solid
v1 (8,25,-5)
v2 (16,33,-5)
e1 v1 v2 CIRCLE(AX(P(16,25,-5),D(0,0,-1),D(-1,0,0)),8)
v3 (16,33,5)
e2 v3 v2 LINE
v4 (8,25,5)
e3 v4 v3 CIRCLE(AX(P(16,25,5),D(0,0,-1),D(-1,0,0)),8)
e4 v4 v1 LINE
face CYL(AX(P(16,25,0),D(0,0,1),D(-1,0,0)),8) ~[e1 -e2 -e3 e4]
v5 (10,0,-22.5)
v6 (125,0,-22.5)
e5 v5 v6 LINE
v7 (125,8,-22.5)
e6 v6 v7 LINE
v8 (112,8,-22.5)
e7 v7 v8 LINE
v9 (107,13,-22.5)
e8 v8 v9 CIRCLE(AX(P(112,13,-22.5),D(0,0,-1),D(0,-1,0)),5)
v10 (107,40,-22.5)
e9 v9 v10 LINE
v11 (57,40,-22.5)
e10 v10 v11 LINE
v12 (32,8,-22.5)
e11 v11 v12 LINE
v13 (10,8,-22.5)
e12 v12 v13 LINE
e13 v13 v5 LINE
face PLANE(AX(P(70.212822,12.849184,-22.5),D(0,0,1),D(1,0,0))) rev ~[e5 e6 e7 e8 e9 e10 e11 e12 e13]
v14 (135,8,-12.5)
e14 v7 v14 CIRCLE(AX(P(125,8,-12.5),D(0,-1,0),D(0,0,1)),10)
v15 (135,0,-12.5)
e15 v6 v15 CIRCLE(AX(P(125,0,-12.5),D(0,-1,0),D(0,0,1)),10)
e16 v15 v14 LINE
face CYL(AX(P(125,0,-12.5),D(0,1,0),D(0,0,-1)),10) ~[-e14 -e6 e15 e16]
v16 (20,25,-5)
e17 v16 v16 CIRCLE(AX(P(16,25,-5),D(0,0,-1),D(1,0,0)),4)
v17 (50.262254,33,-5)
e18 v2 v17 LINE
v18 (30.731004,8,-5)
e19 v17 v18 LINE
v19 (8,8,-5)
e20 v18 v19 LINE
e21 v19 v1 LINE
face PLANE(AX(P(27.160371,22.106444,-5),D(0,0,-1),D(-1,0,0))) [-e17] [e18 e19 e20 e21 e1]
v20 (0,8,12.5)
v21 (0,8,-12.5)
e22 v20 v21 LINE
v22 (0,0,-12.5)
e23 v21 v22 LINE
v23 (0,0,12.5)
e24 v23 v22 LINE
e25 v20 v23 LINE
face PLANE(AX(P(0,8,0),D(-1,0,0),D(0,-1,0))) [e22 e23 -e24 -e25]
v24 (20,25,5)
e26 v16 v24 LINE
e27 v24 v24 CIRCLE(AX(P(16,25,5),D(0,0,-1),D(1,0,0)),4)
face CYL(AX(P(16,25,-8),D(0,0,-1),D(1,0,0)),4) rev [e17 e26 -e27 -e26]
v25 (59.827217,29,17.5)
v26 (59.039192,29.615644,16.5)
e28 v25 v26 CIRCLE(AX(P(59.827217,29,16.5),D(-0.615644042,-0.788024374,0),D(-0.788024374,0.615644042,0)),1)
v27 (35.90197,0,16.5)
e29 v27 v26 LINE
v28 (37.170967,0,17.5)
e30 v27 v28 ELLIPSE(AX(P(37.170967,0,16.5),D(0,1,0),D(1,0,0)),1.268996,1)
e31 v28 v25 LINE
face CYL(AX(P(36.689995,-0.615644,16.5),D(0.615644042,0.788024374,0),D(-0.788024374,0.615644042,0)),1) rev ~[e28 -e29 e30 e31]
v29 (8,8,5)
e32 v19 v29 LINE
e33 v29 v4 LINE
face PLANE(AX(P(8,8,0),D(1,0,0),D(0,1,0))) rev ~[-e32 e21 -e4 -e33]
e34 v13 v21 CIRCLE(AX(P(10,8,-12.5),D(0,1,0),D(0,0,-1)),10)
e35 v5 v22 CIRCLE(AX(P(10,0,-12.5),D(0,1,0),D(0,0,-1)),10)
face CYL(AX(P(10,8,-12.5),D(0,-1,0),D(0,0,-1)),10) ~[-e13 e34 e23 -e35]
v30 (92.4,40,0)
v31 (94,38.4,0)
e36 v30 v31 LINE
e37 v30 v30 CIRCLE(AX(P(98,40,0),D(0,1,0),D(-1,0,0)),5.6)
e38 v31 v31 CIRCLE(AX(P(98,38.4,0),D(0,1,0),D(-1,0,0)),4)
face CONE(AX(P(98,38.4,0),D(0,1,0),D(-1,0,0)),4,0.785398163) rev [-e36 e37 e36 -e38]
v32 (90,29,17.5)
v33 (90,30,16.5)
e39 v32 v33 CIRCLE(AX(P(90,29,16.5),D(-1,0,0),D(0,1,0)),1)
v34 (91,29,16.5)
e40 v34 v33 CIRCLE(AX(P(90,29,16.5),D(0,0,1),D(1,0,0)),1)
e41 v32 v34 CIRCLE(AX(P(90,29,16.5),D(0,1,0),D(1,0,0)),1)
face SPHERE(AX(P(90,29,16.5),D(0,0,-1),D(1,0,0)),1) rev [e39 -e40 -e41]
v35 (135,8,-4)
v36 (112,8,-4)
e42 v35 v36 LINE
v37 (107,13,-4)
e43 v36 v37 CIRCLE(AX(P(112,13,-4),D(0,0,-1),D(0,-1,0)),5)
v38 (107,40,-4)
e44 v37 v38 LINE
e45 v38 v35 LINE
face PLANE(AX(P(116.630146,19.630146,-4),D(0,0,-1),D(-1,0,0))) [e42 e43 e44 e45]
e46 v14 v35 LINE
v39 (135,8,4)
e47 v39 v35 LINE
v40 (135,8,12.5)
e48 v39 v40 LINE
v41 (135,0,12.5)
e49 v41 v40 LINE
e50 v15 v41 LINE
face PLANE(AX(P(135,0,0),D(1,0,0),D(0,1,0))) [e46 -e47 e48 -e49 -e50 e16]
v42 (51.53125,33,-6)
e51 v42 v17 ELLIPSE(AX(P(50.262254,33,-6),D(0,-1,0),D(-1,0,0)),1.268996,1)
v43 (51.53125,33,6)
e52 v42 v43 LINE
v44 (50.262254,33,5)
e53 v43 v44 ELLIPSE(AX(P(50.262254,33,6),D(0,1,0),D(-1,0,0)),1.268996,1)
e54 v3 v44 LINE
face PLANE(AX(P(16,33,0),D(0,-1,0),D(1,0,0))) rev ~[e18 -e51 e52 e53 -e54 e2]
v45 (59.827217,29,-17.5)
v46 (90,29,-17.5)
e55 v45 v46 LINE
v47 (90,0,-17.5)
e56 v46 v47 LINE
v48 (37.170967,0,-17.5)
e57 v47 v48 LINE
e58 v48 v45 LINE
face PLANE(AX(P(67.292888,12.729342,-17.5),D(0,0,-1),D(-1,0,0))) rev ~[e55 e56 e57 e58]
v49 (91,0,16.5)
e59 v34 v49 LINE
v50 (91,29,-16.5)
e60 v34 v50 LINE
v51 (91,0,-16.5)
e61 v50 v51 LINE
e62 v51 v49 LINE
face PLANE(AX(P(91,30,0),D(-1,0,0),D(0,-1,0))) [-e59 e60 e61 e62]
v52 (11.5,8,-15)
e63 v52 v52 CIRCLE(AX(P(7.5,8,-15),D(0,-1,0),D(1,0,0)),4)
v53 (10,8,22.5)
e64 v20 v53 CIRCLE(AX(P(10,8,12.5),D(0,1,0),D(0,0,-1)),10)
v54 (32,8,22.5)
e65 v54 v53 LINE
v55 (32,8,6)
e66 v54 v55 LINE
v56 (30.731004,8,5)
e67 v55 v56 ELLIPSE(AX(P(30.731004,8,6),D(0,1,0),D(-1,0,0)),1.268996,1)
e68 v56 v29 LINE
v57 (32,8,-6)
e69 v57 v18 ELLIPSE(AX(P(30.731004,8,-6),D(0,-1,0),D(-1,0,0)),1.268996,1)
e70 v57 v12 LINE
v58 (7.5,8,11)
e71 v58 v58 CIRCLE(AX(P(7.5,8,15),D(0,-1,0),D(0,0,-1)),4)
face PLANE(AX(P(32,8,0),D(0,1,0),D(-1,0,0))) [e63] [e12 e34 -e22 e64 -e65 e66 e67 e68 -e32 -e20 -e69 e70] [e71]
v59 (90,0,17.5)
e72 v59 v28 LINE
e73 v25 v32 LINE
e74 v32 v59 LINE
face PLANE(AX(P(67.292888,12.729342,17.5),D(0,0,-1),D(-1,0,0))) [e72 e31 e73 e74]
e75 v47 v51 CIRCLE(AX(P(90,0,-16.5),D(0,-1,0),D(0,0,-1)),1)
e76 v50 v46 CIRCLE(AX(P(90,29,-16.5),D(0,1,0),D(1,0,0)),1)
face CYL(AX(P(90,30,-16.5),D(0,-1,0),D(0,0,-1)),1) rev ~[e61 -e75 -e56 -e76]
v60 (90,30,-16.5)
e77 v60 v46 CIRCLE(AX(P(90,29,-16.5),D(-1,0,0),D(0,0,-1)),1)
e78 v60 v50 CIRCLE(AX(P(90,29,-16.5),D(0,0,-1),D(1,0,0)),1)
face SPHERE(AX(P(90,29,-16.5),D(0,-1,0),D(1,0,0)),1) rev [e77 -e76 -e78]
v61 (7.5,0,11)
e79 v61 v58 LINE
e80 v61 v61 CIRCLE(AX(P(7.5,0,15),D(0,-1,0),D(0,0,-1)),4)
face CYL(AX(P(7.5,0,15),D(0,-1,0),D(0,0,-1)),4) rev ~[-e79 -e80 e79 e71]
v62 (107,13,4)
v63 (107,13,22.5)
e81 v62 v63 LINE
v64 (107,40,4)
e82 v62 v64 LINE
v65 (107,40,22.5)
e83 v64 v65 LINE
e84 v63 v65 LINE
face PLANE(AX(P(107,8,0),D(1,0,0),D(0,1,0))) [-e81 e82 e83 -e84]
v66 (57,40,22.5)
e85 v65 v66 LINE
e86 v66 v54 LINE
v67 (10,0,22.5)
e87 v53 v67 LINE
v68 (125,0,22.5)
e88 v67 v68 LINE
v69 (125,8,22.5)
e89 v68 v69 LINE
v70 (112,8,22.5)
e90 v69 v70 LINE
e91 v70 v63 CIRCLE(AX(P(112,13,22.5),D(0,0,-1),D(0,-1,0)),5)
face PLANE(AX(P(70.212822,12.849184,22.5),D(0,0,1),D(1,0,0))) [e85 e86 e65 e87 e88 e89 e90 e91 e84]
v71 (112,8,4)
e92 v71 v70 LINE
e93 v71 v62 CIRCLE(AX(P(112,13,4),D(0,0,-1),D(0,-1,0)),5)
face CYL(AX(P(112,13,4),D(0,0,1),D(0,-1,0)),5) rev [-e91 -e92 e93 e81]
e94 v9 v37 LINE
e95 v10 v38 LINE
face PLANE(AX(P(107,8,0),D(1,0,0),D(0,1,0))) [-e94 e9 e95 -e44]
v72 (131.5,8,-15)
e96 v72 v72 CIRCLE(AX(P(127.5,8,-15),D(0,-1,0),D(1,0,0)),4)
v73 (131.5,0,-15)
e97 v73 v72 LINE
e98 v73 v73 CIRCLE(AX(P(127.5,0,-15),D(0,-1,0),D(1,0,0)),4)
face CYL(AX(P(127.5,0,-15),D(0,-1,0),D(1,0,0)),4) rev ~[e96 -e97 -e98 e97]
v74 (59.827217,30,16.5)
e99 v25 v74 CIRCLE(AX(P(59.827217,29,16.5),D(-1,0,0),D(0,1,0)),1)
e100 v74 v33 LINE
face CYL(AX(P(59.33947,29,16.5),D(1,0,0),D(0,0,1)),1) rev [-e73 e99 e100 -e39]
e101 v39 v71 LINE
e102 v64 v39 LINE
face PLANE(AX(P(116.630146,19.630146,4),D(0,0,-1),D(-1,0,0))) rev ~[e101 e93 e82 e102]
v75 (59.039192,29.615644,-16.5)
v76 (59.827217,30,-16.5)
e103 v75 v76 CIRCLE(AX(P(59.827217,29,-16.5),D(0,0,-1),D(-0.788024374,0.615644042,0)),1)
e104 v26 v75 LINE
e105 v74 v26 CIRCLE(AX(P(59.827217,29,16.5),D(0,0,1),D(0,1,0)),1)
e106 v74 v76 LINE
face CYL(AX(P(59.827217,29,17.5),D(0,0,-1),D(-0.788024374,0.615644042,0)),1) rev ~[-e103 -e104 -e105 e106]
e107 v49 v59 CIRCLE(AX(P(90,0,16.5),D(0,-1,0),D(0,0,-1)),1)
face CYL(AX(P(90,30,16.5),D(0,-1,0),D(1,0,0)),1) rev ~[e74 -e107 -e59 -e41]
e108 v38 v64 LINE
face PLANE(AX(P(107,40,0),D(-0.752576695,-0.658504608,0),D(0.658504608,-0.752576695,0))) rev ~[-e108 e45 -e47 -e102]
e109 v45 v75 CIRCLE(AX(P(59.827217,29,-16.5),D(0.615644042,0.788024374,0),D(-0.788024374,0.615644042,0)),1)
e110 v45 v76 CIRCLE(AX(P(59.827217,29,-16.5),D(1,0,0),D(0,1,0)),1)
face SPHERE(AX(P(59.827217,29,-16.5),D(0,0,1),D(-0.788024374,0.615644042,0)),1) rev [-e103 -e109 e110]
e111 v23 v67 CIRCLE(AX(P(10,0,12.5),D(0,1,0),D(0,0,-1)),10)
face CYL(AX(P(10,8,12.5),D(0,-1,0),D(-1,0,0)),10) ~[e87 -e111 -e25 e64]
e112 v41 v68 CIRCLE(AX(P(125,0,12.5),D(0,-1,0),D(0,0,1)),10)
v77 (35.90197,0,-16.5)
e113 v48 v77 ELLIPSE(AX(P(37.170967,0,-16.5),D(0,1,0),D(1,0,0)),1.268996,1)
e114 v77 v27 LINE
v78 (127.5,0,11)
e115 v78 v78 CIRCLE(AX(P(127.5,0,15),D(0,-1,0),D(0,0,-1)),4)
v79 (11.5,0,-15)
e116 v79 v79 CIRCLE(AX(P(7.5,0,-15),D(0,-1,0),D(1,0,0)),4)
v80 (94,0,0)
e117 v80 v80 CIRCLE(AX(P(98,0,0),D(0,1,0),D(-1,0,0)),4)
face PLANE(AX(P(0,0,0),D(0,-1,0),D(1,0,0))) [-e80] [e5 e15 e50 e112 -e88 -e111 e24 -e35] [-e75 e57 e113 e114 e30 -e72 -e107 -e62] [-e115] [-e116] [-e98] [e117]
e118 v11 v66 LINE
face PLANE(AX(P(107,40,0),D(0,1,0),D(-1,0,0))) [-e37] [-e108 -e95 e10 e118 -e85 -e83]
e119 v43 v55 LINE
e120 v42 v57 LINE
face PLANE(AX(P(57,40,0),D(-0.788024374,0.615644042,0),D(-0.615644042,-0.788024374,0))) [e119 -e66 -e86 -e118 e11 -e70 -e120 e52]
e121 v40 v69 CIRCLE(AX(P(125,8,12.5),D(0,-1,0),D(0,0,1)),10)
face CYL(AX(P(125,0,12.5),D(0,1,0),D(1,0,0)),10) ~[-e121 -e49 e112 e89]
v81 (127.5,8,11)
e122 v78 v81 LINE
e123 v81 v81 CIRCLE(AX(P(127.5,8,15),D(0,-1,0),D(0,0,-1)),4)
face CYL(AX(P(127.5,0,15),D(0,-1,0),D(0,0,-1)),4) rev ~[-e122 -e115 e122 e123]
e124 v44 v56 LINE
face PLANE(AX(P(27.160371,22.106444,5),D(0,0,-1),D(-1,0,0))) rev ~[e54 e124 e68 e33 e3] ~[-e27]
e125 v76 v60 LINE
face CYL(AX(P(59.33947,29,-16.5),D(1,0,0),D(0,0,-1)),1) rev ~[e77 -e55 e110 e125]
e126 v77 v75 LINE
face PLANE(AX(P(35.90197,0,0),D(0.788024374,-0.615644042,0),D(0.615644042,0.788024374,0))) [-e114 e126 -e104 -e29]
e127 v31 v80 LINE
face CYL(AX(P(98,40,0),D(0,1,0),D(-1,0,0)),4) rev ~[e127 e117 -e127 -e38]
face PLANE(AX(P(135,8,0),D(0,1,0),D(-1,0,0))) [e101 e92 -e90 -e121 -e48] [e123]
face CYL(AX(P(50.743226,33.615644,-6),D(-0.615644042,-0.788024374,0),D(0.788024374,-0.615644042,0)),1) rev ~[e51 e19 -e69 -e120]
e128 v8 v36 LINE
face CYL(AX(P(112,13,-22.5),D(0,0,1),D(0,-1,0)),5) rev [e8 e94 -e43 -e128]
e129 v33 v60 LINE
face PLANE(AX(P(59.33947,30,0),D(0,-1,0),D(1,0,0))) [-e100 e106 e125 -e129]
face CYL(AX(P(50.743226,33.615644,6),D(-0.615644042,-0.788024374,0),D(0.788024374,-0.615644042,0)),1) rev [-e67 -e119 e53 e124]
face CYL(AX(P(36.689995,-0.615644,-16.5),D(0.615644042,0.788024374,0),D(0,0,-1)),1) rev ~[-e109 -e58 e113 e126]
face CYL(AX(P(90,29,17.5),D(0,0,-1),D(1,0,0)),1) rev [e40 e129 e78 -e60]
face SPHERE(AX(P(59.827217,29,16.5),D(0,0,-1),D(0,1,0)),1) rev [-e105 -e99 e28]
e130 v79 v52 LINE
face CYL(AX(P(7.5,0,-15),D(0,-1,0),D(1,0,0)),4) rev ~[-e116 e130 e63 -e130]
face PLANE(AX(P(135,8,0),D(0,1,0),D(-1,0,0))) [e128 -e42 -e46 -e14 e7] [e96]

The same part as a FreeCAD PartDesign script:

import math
import FreeCAD as App
import Part
import Sketcher

V = App.Vector
Q = App.Units.Quantity


def edges_at(feature, points):
    """Names of the edges that pass closest to the given points."""
    edges = feature.Shape.Edges
    near = lambda p: min(range(len(edges)), key=lambda i: edges[i].distToShape(Part.Vertex(*p))[0])
    return sorted({f"Edge{near(p) + 1}" for p in points})


def add_polygon(sketch, points):
    """Adds a closed chain of lines whose ends are joined by coincident constraints."""
    first, n = sketch.GeometryCount, len(points)
    for a, b in zip(points, points[1:] + points[:1]):
        sketch.addGeometry(Part.LineSegment(App.Vector(*a, 0), App.Vector(*b, 0)), False)
    for i in range(n):
        sketch.addConstraint(Sketcher.Constraint("Coincident", first + i, 2, first + (i + 1) % n, 1))

doc = App.newDocument("Part")
body = doc.addObject("PartDesign::Body", "Body")

# Sketch on XY plane
sketch1 = doc.addObject("Sketcher::SketchObject", "Sketch")
body.addObject(sketch1)
sketch1.AttachmentSupport = (doc.XY_Plane, [""])
sketch1.MapMode = "FlatFace"
add_polygon(sketch1, [(0, 0), (135, 0), (135, 8), (107, 8), (107, 40), (57, 40), (32, 8), (0, 8)])  # lines 0-7
sketch1.addConstraint([
    Sketcher.Constraint("Horizontal", 0),
    Sketcher.Constraint("Vertical", 1),
    Sketcher.Constraint("Horizontal", 2),
    Sketcher.Constraint("Vertical", 3),
    Sketcher.Constraint("Horizontal", 4),
    Sketcher.Constraint("Horizontal", 6),
    Sketcher.Constraint("Vertical", 7),
    Sketcher.Constraint("Coincident", 7, 2, -1, 1),
    Sketcher.Constraint("Horizontal", 2, 2, 5, 2),
    Sketcher.Constraint("Equal", 6, 3),
    Sketcher.Constraint("DistanceX", 0, 1, 0, 2, Q("135 mm")),
    Sketcher.Constraint("DistanceX", 2, 2, 2, 1, Q("28 mm")),
    Sketcher.Constraint("DistanceX", 4, 2, 4, 1, Q("50 mm")),
    Sketcher.Constraint("DistanceX", 6, 2, 6, 1, Q("32 mm")),
    Sketcher.Constraint("DistanceY", 1, 1, 1, 2, Q("8 mm")),
])
pad1 = doc.addObject("PartDesign::Pad", "Pad")
body.addObject(pad1)
pad1.Profile = sketch1
pad1.Length = 45
pad1.Midplane = True

# Sketch on XY plane
sketch2 = doc.addObject("Sketcher::SketchObject", "Sketch001")
body.addObject(sketch2)
sketch2.AttachmentSupport = (doc.XY_Plane, [""])
sketch2.MapMode = "FlatFace"
sketch2.addGeometry([
    Part.LineSegment(V(8, 25, 0), V(8, 8, 0)),  # 0
    Part.LineSegment(V(8, 8, 0), V(32, 8, 0)),  # 1
    Part.LineSegment(V(32, 8, 0), V(52, 33, 0)),  # 2
    Part.LineSegment(V(52, 33, 0), V(16, 33, 0)),  # 3
    Part.ArcOfCircle(Part.Circle(V(16, 25, 0), V(0, 0, 1), 8), math.radians(90), math.radians(180)),  # 4
], False)
sketch2.addConstraint([
    Sketcher.Constraint("Coincident", 0, 2, 1, 1),
    Sketcher.Constraint("Coincident", 1, 2, 2, 1),
    Sketcher.Constraint("Coincident", 2, 2, 3, 1),
    Sketcher.Constraint("Tangent", 3, 2, 4, 1),
    Sketcher.Constraint("Tangent", 4, 2, 0, 1),
    Sketcher.Constraint("Vertical", 0),
    Sketcher.Constraint("Horizontal", 1),
    Sketcher.Constraint("Horizontal", 3),
    Sketcher.Constraint("Radius", 4, Q("8 mm")),
    Sketcher.Constraint("DistanceX", 1, 1, 1, 2, Q("24 mm")),
    Sketcher.Constraint("DistanceY", 0, 2, 0, 1, Q("17 mm")),
    Sketcher.Constraint("DistanceX", -1, 1, 4, 3, Q("16 mm")),
    Sketcher.Constraint("DistanceY", -1, 1, 4, 3, Q("25 mm")),
    Sketcher.Constraint("DistanceX", 3, 2, 3, 1, Q("35.53125 mm")),
])
pad2 = doc.addObject("PartDesign::Pad", "Pad001")
body.addObject(pad2)
pad2.Profile = sketch2
pad2.Length = 10
pad2.Midplane = True

# Sketch on XY plane
sketch3 = doc.addObject("Sketcher::SketchObject", "Sketch002")
body.addObject(sketch3)
sketch3.AttachmentSupport = (doc.XY_Plane, [""])
sketch3.MapMode = "FlatFace"
add_polygon(sketch3, [(135, 8), (107, 40), (107, 8)])  # lines 0-2
sketch3.addConstraint([
    Sketcher.Constraint("Vertical", 1),
    Sketcher.Constraint("Horizontal", 2),
    Sketcher.Constraint("DistanceX", 2, 1, 2, 2, Q("28 mm")),
    Sketcher.Constraint("DistanceY", 1, 2, 1, 1, Q("32 mm")),
    Sketcher.Constraint("DistanceX", -1, 1, 0, 2, Q("107 mm")),
    Sketcher.Constraint("DistanceY", -1, 1, 0, 2, Q("40 mm")),
])
pad3 = doc.addObject("PartDesign::Pad", "Pad002")
body.addObject(pad3)
pad3.Profile = sketch3
pad3.Length = 8
pad3.Midplane = True

# Sketch on XY plane
sketch4 = doc.addObject("Sketcher::SketchObject", "Sketch003")
body.addObject(sketch4)
sketch4.AttachmentSupport = (doc.XY_Plane, [""])
sketch4.MapMode = "FlatFace"
sketch4.addGeometry(Part.Circle(V(16, 25, 0), V(0, 0, 1), 4), False)
sketch4.addConstraint([
    Sketcher.Constraint("Diameter", 0, Q("8 mm")),
    Sketcher.Constraint("DistanceX", -1, 1, 0, 3, Q("16 mm")),
    Sketcher.Constraint("DistanceY", -1, 1, 0, 3, Q("25 mm")),
])
pocket1 = doc.addObject("PartDesign::Pocket", "Pocket")
body.addObject(pocket1)
pocket1.Profile = sketch4
pocket1.Type = "ThroughAll"
pocket1.Midplane = True

# Sketch on XY plane
sketch5 = doc.addObject("Sketcher::SketchObject", "Sketch004")
body.addObject(sketch5)
sketch5.AttachmentSupport = (doc.XY_Plane, [""])
sketch5.MapMode = "FlatFace"
add_polygon(sketch5, [(59, 30), (36, 0), (91, 0), (91, 30)])  # lines 0-3
sketch5.addConstraint([
    Sketcher.Constraint("Horizontal", 1),
    Sketcher.Constraint("Vertical", 2),
    Sketcher.Constraint("Horizontal", 3),
    Sketcher.Constraint("PointOnObject", 0, 2, -1),
    Sketcher.Constraint("DistanceY", 2, 1, 2, 2, Q("30 mm")),
    Sketcher.Constraint("DistanceX", -1, 1, 1, 2, Q("91 mm")),
    Sketcher.Constraint("DistanceX", 1, 1, 1, 2, Q("55.09803 mm")),
    Sketcher.Constraint("DistanceX", 3, 2, 3, 1, Q("31.66053 mm")),
])
pocket2 = doc.addObject("PartDesign::Pocket", "Pocket001")
body.addObject(pocket2)
pocket2.Profile = sketch5
pocket2.Length = 35
pocket2.Midplane = True
doc.recompute()

fillet = doc.addObject("PartDesign::Fillet", "Fillet")
body.addObject(fillet)
fillet.Base = (pocket2, edges_at(pocket2, [(107, 8, 13.25), (107, 8, -13.25)]))
fillet.Radius = 5

# Sketch on XZ plane
sketch6 = doc.addObject("Sketcher::SketchObject", "Sketch005")
body.addObject(sketch6)
sketch6.AttachmentSupport = (doc.XZ_Plane, [""])
sketch6.MapMode = "FlatFace"
sketch6.addGeometry([
    Part.Circle(V(7.5, 15, 0), V(0, 0, 1), 4),
    Part.Circle(V(7.5, -15, 0), V(0, 0, 1), 4),
    Part.Circle(V(127.5, -15, 0), V(0, 0, 1), 4),
    Part.Circle(V(127.5, 15, 0), V(0, 0, 1), 4),
], False)
sketch6.addConstraint([
    Sketcher.Constraint("Equal", 0, 1),
    Sketcher.Constraint("Equal", 1, 2),
    Sketcher.Constraint("Equal", 2, 3),
    Sketcher.Constraint("Symmetric", 0, 3, 1, 3, -1),
    Sketcher.Constraint("Symmetric", 2, 3, 3, 3, -1),
    Sketcher.Constraint("Horizontal", 1, 3, 2, 3),
    Sketcher.Constraint("Diameter", 0, Q("8 mm")),
    Sketcher.Constraint("DistanceY", -1, 1, 0, 3, Q("15 mm")),
    Sketcher.Constraint("DistanceX", 1, 3, 2, 3, Q("120 mm")),
    Sketcher.Constraint("DistanceX", -1, 1, 0, 3, Q("7.5 mm")),
])
pocket3 = doc.addObject("PartDesign::Pocket", "Pocket002")
body.addObject(pocket3)
pocket3.Profile = sketch6
pocket3.Length = 35

# Sketch on XZ plane
sketch7 = doc.addObject("Sketcher::SketchObject", "Sketch006")
body.addObject(sketch7)
sketch7.AttachmentSupport = (doc.XZ_Plane, [""])
sketch7.MapMode = "FlatFace"
sketch7.AttachmentOffset = App.Placement(V(0, 0, -40), App.Rotation())
sketch7.addGeometry(Part.Circle(V(98, 0, 0), V(0, 0, 1), 4), False)
sketch7.addConstraint([
    Sketcher.Constraint("PointOnObject", 0, 3, -1),
    Sketcher.Constraint("Diameter", 0, Q("8 mm")),
    Sketcher.Constraint("DistanceX", -1, 1, 0, 3, Q("98 mm")),
])
pocket4 = doc.addObject("PartDesign::Pocket", "Pocket003")
body.addObject(pocket4)
pocket4.Profile = sketch7
pocket4.Length = 47
pocket4.Reversed = True
doc.recompute()

fillet2 = doc.addObject("PartDesign::Fillet", "Fillet001")
body.addObject(fillet2)
fillet2.Base = (pocket4, edges_at(pocket4, [
    (135, 4, 22.5),
    (0, 4, -22.5),
    (0, 4, 22.5),
    (135, 4, -22.5),
]))
fillet2.Radius = 10
doc.recompute()

fillet3 = doc.addObject("PartDesign::Fillet", "Fillet002")
body.addObject(fillet3)
fillet3.Base = (fillet2, edges_at(fillet2, [
    (41.766, 20.5, 5),
    (41.766, 20.5, -5),
    (91, 15, -17.5),
    (91, 30, 0),
    (47.621, 15, -17.5),
    (75.17, 30, -17.5),
    (59.339, 30, 0),
    (91, 15, 17.5),
    (75.17, 30, 17.5),
    (47.621, 15, 17.5),
]))
fillet3.Radius = 1
doc.recompute()

chamfer = doc.addObject("PartDesign::Chamfer", "Chamfer")
body.addObject(chamfer)
chamfer.Base = (fillet3, edges_at(fillet3, [(102, 40, 0)]))
chamfer.Size = 1.6

doc.recompute()
